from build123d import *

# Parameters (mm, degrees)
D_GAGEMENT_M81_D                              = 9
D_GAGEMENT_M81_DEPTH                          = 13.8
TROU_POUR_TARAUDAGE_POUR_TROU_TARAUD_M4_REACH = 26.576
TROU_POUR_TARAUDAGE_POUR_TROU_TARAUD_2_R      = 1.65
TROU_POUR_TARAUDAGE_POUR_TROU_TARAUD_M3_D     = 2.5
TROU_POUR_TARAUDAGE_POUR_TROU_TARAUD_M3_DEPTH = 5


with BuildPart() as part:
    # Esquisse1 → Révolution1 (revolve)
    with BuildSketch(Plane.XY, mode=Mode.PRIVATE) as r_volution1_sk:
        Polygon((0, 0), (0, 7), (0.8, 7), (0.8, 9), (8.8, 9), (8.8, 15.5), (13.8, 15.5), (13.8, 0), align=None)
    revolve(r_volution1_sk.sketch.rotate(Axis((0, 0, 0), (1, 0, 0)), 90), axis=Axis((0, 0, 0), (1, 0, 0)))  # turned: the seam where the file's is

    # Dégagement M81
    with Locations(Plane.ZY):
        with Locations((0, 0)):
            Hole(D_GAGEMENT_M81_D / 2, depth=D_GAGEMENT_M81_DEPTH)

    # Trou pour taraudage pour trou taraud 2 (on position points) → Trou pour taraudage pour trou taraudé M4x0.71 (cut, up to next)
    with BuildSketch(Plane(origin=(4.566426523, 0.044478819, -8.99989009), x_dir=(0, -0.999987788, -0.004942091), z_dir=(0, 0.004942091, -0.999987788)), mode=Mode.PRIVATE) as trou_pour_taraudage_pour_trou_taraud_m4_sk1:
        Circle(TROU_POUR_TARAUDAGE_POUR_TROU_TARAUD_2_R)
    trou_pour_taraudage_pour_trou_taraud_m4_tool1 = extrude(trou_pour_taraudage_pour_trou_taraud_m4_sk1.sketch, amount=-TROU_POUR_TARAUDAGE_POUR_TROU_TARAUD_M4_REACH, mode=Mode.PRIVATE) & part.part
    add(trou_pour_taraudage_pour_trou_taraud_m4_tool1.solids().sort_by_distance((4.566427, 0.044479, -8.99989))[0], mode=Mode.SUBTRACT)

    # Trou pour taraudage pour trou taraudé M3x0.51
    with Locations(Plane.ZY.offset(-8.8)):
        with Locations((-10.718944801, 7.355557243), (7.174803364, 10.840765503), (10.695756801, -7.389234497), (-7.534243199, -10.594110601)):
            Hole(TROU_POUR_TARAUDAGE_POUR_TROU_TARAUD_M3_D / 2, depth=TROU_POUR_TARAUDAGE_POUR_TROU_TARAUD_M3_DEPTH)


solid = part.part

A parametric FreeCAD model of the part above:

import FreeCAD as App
import Part
import Sketcher
from FreeCAD import Vector


def add_polygon(sketch, points):
    """Adds a closed chain of lines whose ends are joined by coincident constraints."""
    first, n = sketch.GeometryCount, len(points)
    for a, b in zip(points, points[1:] + points[:1]):
        sketch.addGeometry(Part.LineSegment(App.Vector(*a, 0), App.Vector(*b, 0)), False)
    for i in range(n):
        sketch.addConstraint(Sketcher.Constraint("Coincident", first + i, 2, first + (i + 1) % n, 1))

doc = App.newDocument("Part")
body = doc.addObject("PartDesign::Body", "Body")

sketch1 = body.newObject("Sketcher::SketchObject", "Sketch")
sketch1.AttachmentSupport = (doc.getObject("XY_Plane"), [""])
sketch1.MapMode = "FlatFace"
add_polygon(sketch1, [(0, 7), (0, 0), (13.8, 0), (13.8, 15.5), (8.8, 15.5), (8.8, 9), (0.8, 9), (0.8, 7)])
sketch1.addConstraint(Sketcher.Constraint("Vertical", 0))
sketch1.addConstraint(Sketcher.Constraint("Horizontal", 1))
sketch1.addConstraint(Sketcher.Constraint("Vertical", 2))
sketch1.addConstraint(Sketcher.Constraint("Horizontal", 3))
sketch1.addConstraint(Sketcher.Constraint("Vertical", 4))
sketch1.addConstraint(Sketcher.Constraint("Horizontal", 5))
sketch1.addConstraint(Sketcher.Constraint("Vertical", 6))
sketch1.addConstraint(Sketcher.Constraint("Horizontal", 7))
sketch1.addConstraint(Sketcher.Constraint("Coincident", 0, 2, -1, 1))
sketch1.addConstraint(Sketcher.Constraint("DistanceX", 3, 2, 3, 1, 5.0))
sketch1.addConstraint(Sketcher.Constraint("DistanceX", 5, 2, 5, 1, 8.0))
sketch1.addConstraint(Sketcher.Constraint("DistanceY", 0, 2, 0, 1, 7.0))
sketch1.addConstraint(Sketcher.Constraint("DistanceY", 6, 2, 6, 1, 2.0))
sketch1.addConstraint(Sketcher.Constraint("DistanceX", 1, 1, 1, 2, 13.8))
sketch1.addConstraint(Sketcher.Constraint("DistanceY", 2, 1, 2, 2, 15.5))
revolution = body.newObject("PartDesign::Revolution", "Revolution")
revolution.Profile = sketch1
revolution.ReferenceAxis = (sketch1, ["H_Axis"])
revolution.Angle = 360

sketch2 = body.newObject("Sketcher::SketchObject", "Sketch001")
sketch2.AttachmentSupport = (doc.getObject("YZ_Plane"), [""])
sketch2.MapMode = "FlatFace"
sketch2.addGeometry(Part.Circle(Vector(0, 0, 0), Vector(0, 0, 1), 4.5), False)
sketch2.addConstraint(Sketcher.Constraint("Coincident", 0, 3, -1, 1))
sketch2.addConstraint(Sketcher.Constraint("Diameter", 0, 9.0))
doc.recompute()
hole = body.newObject("PartDesign::Hole", "Hole")
hole.Profile = sketch2
hole.ThreadType = "None"
hole.Diameter = 9
hole.DepthType = "Dimension"
hole.Depth = 13.8
hole.DrillPoint = "Flat"
hole.Reversed = True

sketch3 = body.newObject("Sketcher::SketchObject", "Sketch002")
sketch3.Placement = App.Placement(Vector(4.566427, 0.044479, -8.99989), App.Rotation(Vector(0, -0.999987788, -0.004942091), Vector(-1, 0, 0), Vector(0, 0.004942091, -0.999987788), "ZXY"))
sketch3.addGeometry(Part.Circle(Vector(0, 0, 0), Vector(0, 0, 1), 1.6), False)
sketch3.addConstraint(Sketcher.Constraint("Coincident", 0, 3, -1, 1))
sketch3.addConstraint(Sketcher.Constraint("Diameter", 0, 3.3))
pocket1 = body.newObject("PartDesign::Pocket", "Pocket")
pocket1.Profile = sketch3
pocket1.Type = "UpToFirst"

sketch4 = body.newObject("Sketcher::SketchObject", "Sketch003")
sketch4.AttachmentSupport = (doc.getObject("YZ_Plane"), [""])
sketch4.MapMode = "FlatFace"
sketch4.AttachmentOffset = App.Placement(Vector(0, 0, 8.8), App.Rotation())
sketch4.addGeometry(Part.Circle(Vector(7.4, -10.7, 0), Vector(0, 0, 1), 1.2), False)
sketch4.addGeometry(Part.Circle(Vector(10.8, 7.2, 0), Vector(0, 0, 1), 1.2), False)
sketch4.addGeometry(Part.Circle(Vector(-7.4, 10.7, 0), Vector(0, 0, 1), 1.2), False)
sketch4.addGeometry(Part.Circle(Vector(-10.6, -7.5, 0), Vector(0, 0, 1), 1.2), False)
sketch4.addConstraint(Sketcher.Constraint("Equal", 0, 1))
sketch4.addConstraint(Sketcher.Constraint("Equal", 1, 2))
sketch4.addConstraint(Sketcher.Constraint("Equal", 2, 3))
sketch4.addConstraint(Sketcher.Constraint("Diameter", 0, 2.5))
sketch4.addConstraint(Sketcher.Constraint("DistanceX", 2, 3, 1, 3, 18.23))
sketch4.addConstraint(Sketcher.Constraint("DistanceY", 3, 3, 2, 3, 18.23))
sketch4.addConstraint(Sketcher.Constraint("DistanceY", 0, 3, 2, 3, 21.414702))
sketch4.addConstraint(Sketcher.Constraint("DistanceX", 3, 3, -1, 1, 10.594111))
sketch4.addConstraint(Sketcher.Constraint("DistanceX", 0, 3, 1, 3, 3.485208))
sketch4.addConstraint(Sketcher.Constraint("DistanceY", 0, 3, 1, 3, 17.893748))
sketch4.addConstraint(Sketcher.Constraint("DistanceX", -1, 1, 0, 3, 7.355557))
sketch4.addConstraint(Sketcher.Constraint("DistanceY", 0, 3, -1, 1, 10.718945))
doc.recompute()
hole2 = body.newObject("PartDesign::Hole", "Hole001")
hole2.Profile = sketch4
hole2.ThreadType = "None"
hole2.Diameter = 2.5
hole2.DepthType = "Dimension"
hole2.Depth = 5
hole2.DrillPoint = "Flat"
hole2.Reversed = True

doc.recompute()
